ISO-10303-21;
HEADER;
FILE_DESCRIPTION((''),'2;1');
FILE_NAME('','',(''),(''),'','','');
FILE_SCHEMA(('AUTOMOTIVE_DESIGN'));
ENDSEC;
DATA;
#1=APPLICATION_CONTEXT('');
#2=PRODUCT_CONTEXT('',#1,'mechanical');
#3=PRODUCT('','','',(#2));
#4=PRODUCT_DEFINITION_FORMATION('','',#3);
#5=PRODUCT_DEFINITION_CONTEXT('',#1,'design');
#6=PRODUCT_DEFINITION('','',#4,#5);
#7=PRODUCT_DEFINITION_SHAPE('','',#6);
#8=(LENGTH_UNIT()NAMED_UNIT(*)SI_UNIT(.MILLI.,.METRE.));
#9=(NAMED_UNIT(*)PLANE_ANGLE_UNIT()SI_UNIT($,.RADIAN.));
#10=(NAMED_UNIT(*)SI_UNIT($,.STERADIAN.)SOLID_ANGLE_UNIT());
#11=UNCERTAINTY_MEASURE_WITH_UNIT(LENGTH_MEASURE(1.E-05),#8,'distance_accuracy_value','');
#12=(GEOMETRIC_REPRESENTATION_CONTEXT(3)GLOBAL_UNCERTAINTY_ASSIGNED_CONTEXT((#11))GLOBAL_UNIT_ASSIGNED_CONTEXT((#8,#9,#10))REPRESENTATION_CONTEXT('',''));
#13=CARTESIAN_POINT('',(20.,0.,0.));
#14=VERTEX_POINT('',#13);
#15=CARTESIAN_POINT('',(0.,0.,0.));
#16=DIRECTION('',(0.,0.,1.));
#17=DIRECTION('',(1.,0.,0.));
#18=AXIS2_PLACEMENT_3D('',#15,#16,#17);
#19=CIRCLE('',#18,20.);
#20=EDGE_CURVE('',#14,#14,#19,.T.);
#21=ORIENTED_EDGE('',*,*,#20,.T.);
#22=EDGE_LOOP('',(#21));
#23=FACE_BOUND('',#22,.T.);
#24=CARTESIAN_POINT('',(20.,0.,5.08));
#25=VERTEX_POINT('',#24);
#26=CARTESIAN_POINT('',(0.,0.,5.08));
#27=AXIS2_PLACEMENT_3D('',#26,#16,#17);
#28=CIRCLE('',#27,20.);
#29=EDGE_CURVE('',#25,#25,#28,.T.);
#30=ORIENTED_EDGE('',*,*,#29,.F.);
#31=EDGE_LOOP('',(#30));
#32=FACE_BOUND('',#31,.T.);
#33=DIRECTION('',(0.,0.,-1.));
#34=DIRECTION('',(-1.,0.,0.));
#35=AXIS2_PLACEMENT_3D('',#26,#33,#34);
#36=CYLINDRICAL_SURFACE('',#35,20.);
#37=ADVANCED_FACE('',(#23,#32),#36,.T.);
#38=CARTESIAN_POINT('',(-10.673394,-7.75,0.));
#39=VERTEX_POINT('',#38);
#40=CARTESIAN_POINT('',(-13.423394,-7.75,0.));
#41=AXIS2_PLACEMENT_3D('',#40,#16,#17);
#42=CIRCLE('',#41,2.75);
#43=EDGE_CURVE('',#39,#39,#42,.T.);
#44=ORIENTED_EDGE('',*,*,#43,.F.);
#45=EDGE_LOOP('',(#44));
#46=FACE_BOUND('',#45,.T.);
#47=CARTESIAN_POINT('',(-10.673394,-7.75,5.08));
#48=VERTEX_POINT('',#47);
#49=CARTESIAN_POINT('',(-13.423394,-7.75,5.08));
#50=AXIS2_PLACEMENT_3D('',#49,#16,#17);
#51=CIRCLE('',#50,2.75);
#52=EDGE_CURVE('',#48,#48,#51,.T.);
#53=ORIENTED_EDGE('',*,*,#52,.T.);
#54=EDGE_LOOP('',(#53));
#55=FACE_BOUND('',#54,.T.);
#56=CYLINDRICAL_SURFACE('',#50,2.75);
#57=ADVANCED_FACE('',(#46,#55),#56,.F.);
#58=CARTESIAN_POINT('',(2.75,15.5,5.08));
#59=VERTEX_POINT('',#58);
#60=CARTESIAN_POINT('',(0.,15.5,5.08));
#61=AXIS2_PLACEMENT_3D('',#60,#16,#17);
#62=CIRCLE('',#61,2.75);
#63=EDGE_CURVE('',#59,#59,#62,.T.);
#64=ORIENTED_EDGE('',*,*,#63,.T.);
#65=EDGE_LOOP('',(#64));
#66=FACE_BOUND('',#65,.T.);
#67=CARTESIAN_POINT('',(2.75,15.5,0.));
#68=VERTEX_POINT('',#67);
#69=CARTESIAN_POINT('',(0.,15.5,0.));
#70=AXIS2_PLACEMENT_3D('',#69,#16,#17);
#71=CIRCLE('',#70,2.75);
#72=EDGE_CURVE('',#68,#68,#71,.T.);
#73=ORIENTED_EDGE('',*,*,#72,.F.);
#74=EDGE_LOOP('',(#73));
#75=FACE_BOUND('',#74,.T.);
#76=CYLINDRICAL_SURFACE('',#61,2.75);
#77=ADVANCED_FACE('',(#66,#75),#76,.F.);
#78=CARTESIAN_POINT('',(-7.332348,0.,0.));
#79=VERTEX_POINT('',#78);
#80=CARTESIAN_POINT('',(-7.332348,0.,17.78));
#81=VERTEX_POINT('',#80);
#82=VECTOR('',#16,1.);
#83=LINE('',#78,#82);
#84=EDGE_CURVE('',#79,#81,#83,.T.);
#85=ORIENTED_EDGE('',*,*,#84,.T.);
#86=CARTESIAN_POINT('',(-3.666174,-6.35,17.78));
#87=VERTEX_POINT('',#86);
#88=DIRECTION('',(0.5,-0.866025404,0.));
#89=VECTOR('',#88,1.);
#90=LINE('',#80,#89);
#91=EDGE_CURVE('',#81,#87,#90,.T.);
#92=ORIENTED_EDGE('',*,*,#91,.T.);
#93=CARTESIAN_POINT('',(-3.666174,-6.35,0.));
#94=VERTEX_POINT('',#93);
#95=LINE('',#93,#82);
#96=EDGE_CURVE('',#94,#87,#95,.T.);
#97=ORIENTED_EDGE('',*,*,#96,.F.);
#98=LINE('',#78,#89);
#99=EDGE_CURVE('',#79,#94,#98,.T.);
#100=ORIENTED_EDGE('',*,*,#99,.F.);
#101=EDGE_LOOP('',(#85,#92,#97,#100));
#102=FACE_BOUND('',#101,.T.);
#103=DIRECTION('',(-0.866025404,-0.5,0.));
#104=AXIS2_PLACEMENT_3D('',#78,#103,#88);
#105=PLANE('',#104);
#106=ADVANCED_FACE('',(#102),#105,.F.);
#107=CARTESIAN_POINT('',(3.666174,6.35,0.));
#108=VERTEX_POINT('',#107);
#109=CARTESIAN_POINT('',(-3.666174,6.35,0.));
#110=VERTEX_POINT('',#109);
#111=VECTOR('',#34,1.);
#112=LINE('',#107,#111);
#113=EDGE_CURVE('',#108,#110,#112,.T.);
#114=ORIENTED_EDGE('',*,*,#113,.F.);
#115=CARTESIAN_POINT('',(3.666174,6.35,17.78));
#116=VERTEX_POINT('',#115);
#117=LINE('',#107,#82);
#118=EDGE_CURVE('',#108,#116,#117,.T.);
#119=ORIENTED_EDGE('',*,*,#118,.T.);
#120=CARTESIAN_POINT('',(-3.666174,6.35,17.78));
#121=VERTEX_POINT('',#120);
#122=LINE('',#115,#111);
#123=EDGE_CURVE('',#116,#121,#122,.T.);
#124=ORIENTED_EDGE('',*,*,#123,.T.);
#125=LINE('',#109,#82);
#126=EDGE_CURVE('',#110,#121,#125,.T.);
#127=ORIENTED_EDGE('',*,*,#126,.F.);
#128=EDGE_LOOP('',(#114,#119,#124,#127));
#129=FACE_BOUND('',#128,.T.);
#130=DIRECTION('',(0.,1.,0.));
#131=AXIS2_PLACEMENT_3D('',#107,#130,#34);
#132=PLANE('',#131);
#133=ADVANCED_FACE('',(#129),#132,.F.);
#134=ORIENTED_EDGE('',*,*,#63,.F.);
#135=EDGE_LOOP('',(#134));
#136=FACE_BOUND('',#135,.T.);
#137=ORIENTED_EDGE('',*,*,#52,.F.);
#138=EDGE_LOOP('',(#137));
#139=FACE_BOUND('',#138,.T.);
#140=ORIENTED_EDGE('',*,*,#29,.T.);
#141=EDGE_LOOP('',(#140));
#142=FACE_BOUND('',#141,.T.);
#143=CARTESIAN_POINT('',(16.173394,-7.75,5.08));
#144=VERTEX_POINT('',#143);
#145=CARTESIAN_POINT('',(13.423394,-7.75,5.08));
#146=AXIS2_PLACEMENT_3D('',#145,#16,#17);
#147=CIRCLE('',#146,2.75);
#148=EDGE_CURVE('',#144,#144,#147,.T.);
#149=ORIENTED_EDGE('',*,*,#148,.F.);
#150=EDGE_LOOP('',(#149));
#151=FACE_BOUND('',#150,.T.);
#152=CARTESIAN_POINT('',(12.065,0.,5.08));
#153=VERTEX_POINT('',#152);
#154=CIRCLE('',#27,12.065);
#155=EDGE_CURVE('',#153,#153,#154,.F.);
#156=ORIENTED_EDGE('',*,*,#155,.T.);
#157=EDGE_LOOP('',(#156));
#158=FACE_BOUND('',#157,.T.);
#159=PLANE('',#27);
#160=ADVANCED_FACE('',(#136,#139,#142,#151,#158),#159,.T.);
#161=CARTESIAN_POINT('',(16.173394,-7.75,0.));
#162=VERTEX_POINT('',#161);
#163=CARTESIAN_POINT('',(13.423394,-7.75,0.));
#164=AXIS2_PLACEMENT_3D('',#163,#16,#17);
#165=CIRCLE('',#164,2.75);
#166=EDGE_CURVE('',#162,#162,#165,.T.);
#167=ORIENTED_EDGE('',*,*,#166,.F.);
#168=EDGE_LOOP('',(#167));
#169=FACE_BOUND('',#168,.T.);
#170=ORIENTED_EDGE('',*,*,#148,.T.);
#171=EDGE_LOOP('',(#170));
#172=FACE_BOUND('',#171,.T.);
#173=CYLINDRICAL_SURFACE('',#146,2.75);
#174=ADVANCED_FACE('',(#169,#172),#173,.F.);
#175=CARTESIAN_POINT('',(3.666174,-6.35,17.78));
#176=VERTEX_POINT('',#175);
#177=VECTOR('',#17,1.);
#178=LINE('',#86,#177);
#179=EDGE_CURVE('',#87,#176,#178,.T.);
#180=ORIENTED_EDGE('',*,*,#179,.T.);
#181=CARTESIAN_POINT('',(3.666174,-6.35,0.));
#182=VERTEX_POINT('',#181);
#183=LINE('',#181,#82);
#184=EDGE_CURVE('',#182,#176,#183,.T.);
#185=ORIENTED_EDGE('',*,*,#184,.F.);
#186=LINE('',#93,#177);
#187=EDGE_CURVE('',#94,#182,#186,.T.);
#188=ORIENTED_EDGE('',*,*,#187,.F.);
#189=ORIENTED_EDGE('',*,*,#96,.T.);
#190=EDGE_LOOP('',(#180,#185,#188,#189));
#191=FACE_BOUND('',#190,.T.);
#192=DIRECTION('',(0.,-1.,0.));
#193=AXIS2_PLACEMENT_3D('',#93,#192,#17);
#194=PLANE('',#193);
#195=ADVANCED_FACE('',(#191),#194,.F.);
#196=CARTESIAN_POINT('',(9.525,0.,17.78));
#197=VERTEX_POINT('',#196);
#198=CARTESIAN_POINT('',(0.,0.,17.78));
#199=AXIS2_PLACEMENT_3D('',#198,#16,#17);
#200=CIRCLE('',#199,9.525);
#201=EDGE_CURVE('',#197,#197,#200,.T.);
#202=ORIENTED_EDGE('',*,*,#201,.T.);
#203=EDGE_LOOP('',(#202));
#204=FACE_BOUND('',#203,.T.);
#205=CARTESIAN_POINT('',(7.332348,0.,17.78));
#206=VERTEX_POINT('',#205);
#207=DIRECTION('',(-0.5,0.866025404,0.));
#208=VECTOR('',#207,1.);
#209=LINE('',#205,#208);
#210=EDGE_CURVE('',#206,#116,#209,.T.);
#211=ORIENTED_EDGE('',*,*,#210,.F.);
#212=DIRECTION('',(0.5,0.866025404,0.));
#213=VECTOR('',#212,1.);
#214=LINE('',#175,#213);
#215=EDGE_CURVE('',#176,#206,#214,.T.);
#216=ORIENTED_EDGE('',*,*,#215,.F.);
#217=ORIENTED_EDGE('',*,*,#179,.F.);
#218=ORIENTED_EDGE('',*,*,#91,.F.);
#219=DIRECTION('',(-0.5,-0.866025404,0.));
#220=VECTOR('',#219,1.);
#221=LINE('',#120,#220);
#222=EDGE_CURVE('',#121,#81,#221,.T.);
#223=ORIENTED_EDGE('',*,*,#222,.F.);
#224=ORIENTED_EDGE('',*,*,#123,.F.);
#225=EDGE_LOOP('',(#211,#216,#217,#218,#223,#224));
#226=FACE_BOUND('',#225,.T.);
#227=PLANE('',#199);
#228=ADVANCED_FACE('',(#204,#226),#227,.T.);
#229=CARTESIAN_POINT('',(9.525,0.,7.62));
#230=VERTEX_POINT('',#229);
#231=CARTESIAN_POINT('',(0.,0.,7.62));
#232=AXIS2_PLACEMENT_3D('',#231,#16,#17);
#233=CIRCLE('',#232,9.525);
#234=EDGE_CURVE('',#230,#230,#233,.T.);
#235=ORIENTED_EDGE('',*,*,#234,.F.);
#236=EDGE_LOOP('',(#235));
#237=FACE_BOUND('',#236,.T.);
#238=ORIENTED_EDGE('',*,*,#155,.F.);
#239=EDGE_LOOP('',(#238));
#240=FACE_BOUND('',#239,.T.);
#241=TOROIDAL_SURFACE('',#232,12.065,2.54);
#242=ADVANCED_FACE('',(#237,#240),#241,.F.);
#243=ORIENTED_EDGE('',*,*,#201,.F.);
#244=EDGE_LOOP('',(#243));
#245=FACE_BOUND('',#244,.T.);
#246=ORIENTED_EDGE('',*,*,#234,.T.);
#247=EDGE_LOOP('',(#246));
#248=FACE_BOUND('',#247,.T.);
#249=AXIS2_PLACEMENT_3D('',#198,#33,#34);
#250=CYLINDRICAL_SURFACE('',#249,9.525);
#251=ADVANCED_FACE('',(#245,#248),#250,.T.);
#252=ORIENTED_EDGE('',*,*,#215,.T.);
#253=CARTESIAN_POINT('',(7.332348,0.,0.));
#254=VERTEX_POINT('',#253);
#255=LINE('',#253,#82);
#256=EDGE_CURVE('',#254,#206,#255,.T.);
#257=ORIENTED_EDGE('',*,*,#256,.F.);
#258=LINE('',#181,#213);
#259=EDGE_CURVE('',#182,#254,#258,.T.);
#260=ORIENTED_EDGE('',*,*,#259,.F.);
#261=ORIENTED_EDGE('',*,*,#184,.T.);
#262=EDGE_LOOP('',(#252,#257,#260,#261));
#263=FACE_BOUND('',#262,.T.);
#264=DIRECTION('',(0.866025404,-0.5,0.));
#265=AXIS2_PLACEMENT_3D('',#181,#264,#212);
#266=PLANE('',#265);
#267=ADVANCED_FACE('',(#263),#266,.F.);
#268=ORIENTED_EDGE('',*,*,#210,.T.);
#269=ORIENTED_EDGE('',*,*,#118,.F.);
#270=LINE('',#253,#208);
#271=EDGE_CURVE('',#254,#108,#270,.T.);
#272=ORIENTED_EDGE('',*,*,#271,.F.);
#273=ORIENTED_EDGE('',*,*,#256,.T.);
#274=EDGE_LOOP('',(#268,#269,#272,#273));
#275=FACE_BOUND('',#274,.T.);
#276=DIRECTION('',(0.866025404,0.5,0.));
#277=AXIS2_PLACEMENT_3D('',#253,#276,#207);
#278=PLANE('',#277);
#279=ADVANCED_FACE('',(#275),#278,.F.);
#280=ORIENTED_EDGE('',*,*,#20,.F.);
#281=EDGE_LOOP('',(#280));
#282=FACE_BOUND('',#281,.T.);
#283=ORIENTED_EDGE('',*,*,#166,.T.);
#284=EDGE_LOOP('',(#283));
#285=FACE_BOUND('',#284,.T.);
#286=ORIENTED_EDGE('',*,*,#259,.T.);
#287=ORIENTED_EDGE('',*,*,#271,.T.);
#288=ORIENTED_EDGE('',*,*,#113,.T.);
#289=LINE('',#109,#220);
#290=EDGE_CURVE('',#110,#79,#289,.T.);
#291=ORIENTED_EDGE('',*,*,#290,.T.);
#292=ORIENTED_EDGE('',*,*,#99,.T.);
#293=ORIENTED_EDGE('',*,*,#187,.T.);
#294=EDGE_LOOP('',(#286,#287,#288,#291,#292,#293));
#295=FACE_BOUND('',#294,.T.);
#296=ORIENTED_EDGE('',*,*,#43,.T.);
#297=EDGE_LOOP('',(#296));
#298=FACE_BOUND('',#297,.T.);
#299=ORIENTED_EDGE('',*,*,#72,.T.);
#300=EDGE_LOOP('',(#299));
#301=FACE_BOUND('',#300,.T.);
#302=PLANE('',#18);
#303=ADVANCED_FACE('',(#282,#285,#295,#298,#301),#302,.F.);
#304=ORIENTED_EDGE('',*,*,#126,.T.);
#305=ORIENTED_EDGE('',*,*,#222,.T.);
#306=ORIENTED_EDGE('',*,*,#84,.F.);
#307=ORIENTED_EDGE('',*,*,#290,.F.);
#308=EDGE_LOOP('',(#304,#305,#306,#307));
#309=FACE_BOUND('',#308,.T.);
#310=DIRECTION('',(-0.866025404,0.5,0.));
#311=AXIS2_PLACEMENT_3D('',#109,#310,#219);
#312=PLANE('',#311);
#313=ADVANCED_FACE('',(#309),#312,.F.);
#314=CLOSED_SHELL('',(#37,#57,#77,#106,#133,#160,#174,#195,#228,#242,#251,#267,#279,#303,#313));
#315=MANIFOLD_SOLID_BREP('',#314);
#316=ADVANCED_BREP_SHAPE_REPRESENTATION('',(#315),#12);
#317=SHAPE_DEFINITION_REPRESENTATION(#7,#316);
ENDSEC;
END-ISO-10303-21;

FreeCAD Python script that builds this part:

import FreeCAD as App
import Part
import Sketcher

V = App.Vector
Q = App.Units.Quantity


def edges_at(feature, points):
    """Names of the edges that pass closest to the given points."""
    edges = feature.Shape.Edges
    near = lambda p: min(range(len(edges)), key=lambda i: edges[i].distToShape(Part.Vertex(*p))[0])
    return sorted({f"Edge{near(p) + 1}" for p in points})

doc = App.newDocument("Part")
body = doc.addObject("PartDesign::Body", "Body")

sketch1 = body.newObject("Sketcher::SketchObject", "Sketch")
sketch1.AttachmentSupport = (doc.getObject("XY_Plane"), [""])
sketch1.MapMode = "FlatFace"
sketch1.addGeometry(Part.Circle(V(0, 0, 0), V(0, 0, 1), 20), False)
sketch1.addConstraint(Sketcher.Constraint("Coincident", 0, 3, -1, 1))
sketch1.addConstraint(Sketcher.Constraint("Diameter", 0, Q("40 mm")))
pad1 = body.newObject("PartDesign::Pad", "Pad")
pad1.Profile = sketch1
pad1.Length = Q("0.2 in")

sketch2 = body.newObject("Sketcher::SketchObject", "Sketch001")
sketch2.AttachmentSupport = (doc.getObject("XY_Plane"), [""])
sketch2.MapMode = "FlatFace"
sketch2.AttachmentOffset = App.Placement(V(0, 0, 0.2 * 25.4), App.Rotation())
sketch2.addGeometry(Part.Circle(V(0, 0, 0), V(0, 0, 1), 9.525), False)
sketch2.addConstraint(Sketcher.Constraint("Coincident", 0, 3, -1, 1))
sketch2.addConstraint(Sketcher.Constraint("Diameter", 0, Q("0.75 in")))
pad2 = body.newObject("PartDesign::Pad", "Pad001")
pad2.Profile = sketch2
pad2.Length = Q("0.5 in")

sketch3 = body.newObject("Sketcher::SketchObject", "Sketch002")
sketch3.AttachmentSupport = (doc.getObject("XY_Plane"), [""])
sketch3.MapMode = "FlatFace"
sketch3.AttachmentOffset = App.Placement(V(0, 0, 0.2 * 25.4), App.Rotation())
sketch3.addGeometry(Part.Circle(V(0, 15.5, 0), V(0, 0, 1), 2.75), False)
sketch3.addGeometry(Part.Circle(V(13.423394, -7.75, 0), V(0, 0, 1), 2.75), False)
sketch3.addGeometry(Part.Circle(V(-13.423394, -7.75, 0), V(0, 0, 1), 2.75), False)
sketch3.addConstraint(Sketcher.Constraint("Equal", 0, 1))
sketch3.addConstraint(Sketcher.Constraint("Equal", 1, 2))
sketch3.addConstraint(Sketcher.Constraint("Symmetric", 1, 3, 2, 3, -2))
sketch3.addConstraint(Sketcher.Constraint("PointOnObject", 0, 3, -2))
sketch3.addConstraint(Sketcher.Constraint("Diameter", 0, Q("5.5 mm")))
sketch3.addConstraint(Sketcher.Constraint("DistanceY", -1, 1, 0, 3, Q("15.5 mm")))
sketch3.addConstraint(Sketcher.Constraint("DistanceY", 1, 3, -1, 1, Q("7.75 mm")))
sketch3.addConstraint(Sketcher.Constraint("DistanceX", -1, 1, 1, 3, Q("13.423394 mm")))
doc.recompute()
hole = body.newObject("PartDesign::Hole", "Hole")
hole.Profile = sketch3
hole.ThreadType = "None"
hole.Diameter = 5.5
hole.DepthType = "ThroughAll"

sketch4 = body.newObject("Sketcher::SketchObject", "Sketch003")
sketch4.AttachmentSupport = (doc.getObject("XY_Plane"), [""])
sketch4.MapMode = "FlatFace"
sketch4.AttachmentOffset = App.Placement(V(0, 0, 0.7 * 25.4), App.Rotation())
sketch4.addGeometry(Part.LineSegment(V(3.666174, 6.35, 0), V(-3.666174, 6.35, 0)), False)
sketch4.addGeometry(Part.LineSegment(V(-3.666174, 6.35, 0), V(-7.332348, 0, 0)), False)
sketch4.addGeometry(Part.LineSegment(V(-7.332348, 0, 0), V(-3.666174, -6.35, 0)), False)
sketch4.addGeometry(Part.LineSegment(V(-3.666174, -6.35, 0), V(3.666174, -6.35, 0)), False)
sketch4.addGeometry(Part.LineSegment(V(3.666174, -6.35, 0), V(7.332348, 0, 0)), False)
sketch4.addGeometry(Part.LineSegment(V(7.332348, 0, 0), V(3.666174, 6.35, 0)), False)
sketch4.addConstraint(Sketcher.Constraint("Coincident", 0, 2, 1, 1))
sketch4.addConstraint(Sketcher.Constraint("Coincident", 1, 2, 2, 1))
sketch4.addConstraint(Sketcher.Constraint("Coincident", 2, 2, 3, 1))
sketch4.addConstraint(Sketcher.Constraint("Coincident", 3, 2, 4, 1))
sketch4.addConstraint(Sketcher.Constraint("Coincident", 4, 2, 5, 1))
sketch4.addConstraint(Sketcher.Constraint("Coincident", 5, 2, 0, 1))
sketch4.addConstraint(Sketcher.Constraint("Horizontal", 0))
sketch4.addConstraint(Sketcher.Constraint("Horizontal", 3))
sketch4.addConstraint(Sketcher.Constraint("Symmetric", 0, 2, 3, 2, -1, 1))
sketch4.addConstraint(Sketcher.Constraint("Symmetric", 1, 2, 4, 2, -1, 1))
sketch4.addConstraint(Sketcher.Constraint("PointOnObject", 1, 2, -1))
sketch4.addConstraint(Sketcher.Constraint("Parallel", 2, 5))
sketch4.addConstraint(Sketcher.Constraint("Vertical", 0, 2, 2, 2))
sketch4.addConstraint(Sketcher.Constraint("Angle", 1, Q("-120 deg")))
sketch4.addConstraint(Sketcher.Constraint("DistanceY", 2, 2, 0, 2, Q("0.5 in")))
sketch4.addConstraint(Sketcher.Constraint("DistanceX", 0, 2, 0, 1, Q("7.332348 mm")))
pocket1 = body.newObject("PartDesign::Pocket", "Pocket")
pocket1.Profile = sketch4
pocket1.Type = "ThroughAll"
doc.recompute()

fillet = body.newObject("PartDesign::Fillet", "Fillet")
fillet.Base = (pocket1, edges_at(pocket1, [(-9.525, 0, 5.08)]))
fillet.Radius = Q("0.1 in")

doc.recompute()
